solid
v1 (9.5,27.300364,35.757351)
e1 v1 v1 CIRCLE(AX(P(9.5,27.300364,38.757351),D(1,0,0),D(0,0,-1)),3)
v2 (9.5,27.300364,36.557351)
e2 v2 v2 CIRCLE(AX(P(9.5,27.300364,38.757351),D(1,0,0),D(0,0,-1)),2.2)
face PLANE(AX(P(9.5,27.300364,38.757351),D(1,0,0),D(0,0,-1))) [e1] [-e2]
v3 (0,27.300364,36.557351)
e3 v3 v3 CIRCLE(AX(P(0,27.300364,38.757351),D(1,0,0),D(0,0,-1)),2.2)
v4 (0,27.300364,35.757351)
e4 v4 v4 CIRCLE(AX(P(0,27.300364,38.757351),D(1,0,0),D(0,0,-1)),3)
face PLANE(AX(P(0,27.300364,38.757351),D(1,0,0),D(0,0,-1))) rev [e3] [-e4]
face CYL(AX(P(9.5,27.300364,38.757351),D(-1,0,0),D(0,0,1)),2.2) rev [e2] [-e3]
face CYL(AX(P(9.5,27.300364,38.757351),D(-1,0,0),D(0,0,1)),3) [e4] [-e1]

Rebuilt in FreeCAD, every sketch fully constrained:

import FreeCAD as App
import Part
import Sketcher
from FreeCAD import Vector
Q = App.Units.Quantity

doc = App.newDocument("Part")
body = doc.addObject("PartDesign::Body", "Body")

sketch1 = body.newObject("Sketcher::SketchObject", "Sketch")
sketch1.AttachmentSupport = (doc.getObject("YZ_Plane"), [""])
sketch1.MapMode = "FlatFace"
sketch1.addGeometry(Part.Circle(Vector(27.3, 38.8, 0), Vector(0, 0, 1), 3), False)
sketch1.addGeometry(Part.Circle(Vector(27.3, 38.8, 0), Vector(0, 0, 1), 2.2), False)
sketch1.addConstraint(Sketcher.Constraint("Coincident", 1, 3, 0, 3))
sketch1.addConstraint(Sketcher.Constraint("Diameter", 0, Q("6 mm")))
sketch1.addConstraint(Sketcher.Constraint("Diameter", 1, Q("4.4 mm")))
sketch1.addConstraint(Sketcher.Constraint("DistanceY", -1, 1, 0, 3, Q("38.757351 mm")))
sketch1.addConstraint(Sketcher.Constraint("DistanceX", -1, 1, 0, 3, Q("27.300364 mm")))
pad1 = body.newObject("PartDesign::Pad", "Pad")
pad1.Profile = sketch1
pad1.Length = 9.5

doc.recompute()
